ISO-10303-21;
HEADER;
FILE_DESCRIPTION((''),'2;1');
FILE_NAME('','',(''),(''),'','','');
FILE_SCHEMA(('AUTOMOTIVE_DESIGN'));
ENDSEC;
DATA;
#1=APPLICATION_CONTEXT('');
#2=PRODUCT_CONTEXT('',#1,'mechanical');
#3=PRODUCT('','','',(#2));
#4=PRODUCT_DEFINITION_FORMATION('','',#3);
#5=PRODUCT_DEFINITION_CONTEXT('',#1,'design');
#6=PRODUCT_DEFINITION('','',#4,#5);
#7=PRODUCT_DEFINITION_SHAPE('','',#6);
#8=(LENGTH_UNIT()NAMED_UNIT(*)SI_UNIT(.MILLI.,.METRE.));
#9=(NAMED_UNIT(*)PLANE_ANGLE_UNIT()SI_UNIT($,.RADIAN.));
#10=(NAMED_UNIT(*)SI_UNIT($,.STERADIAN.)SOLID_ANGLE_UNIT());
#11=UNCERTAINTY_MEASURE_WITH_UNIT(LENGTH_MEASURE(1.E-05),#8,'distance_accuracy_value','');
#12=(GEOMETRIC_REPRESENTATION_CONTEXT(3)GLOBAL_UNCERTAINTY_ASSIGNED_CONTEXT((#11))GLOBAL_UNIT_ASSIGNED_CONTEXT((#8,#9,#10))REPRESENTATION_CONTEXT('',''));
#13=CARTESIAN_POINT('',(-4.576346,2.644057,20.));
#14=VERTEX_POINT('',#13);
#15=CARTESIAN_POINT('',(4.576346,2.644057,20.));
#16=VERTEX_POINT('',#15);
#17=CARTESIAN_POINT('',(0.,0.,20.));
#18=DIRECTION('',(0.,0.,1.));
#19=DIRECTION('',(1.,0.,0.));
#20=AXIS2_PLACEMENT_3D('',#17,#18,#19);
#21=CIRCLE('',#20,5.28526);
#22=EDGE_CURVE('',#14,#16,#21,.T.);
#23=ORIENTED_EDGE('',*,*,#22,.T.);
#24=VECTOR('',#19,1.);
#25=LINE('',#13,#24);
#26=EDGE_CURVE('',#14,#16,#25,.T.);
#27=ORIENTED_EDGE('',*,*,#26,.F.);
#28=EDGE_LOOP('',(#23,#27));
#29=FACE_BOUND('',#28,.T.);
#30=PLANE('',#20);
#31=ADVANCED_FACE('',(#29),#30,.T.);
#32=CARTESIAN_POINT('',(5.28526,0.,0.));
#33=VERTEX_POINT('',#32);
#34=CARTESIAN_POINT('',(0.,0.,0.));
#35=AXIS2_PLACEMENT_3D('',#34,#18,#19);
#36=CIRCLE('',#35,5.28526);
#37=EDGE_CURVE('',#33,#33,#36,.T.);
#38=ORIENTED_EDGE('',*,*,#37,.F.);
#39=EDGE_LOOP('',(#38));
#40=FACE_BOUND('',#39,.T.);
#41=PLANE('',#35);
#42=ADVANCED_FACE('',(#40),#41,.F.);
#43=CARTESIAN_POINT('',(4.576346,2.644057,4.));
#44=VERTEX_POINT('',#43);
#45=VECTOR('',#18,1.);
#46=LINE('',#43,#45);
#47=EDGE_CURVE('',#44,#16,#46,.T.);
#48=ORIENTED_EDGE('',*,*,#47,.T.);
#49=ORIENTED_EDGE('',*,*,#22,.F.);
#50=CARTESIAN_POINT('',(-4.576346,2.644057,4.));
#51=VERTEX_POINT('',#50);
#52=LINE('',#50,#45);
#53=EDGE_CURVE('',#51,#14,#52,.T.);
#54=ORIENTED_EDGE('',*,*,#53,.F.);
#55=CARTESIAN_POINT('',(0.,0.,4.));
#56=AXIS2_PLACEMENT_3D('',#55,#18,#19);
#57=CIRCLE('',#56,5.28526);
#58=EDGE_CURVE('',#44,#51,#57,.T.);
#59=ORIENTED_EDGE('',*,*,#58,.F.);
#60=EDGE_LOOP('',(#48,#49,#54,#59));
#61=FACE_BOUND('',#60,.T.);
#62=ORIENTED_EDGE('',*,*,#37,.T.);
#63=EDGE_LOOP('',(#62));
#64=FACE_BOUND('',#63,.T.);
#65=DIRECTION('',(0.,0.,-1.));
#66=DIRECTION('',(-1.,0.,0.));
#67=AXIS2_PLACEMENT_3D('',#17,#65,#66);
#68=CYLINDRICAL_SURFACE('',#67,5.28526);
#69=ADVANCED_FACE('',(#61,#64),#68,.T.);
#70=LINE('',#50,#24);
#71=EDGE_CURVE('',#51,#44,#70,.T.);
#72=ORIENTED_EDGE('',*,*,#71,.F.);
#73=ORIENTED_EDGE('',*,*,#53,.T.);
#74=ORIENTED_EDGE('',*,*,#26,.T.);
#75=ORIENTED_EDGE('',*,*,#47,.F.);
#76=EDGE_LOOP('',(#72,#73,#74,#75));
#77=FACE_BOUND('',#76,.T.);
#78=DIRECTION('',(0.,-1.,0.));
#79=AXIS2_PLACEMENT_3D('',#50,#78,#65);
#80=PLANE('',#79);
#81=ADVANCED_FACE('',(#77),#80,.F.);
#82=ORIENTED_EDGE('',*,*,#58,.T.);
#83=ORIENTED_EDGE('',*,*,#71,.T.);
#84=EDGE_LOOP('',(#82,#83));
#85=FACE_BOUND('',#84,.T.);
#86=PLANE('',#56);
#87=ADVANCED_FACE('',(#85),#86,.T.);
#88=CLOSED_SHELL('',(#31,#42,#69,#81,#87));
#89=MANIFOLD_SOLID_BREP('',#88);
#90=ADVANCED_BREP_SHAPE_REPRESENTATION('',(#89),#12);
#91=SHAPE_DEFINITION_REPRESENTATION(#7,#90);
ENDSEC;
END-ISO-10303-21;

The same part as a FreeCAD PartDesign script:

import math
import FreeCAD as App
import Part
import Sketcher
from FreeCAD import Vector
Q = App.Units.Quantity

doc = App.newDocument("Part")
body = doc.addObject("PartDesign::Body", "Body")

sketch1 = body.newObject("Sketcher::SketchObject", "Sketch")
sketch1.AttachmentSupport = (doc.getObject("XY_Plane"), [""])
sketch1.MapMode = "FlatFace"
sketch1.addGeometry(Part.Circle(Vector(0, 0, 0), Vector(0, 0, 1), 5.28526), False)
sketch1.addConstraint([
    Sketcher.Constraint("Coincident", 0, 3, -1, 1),
    Sketcher.Constraint("Diameter", 0, Q("10.570521 mm")),
])
pad1 = body.newObject("PartDesign::Pad", "Pad")
pad1.Profile = sketch1
pad1.Length = 20

sketch2 = body.newObject("Sketcher::SketchObject", "Sketch001")
sketch2.AttachmentSupport = (doc.getObject("XY_Plane"), [""])
sketch2.MapMode = "FlatFace"
sketch2.AttachmentOffset = App.Placement(Vector(0, 0, 20), App.Rotation())
sketch2.addGeometry([
    Part.LineSegment(Vector(-4.576346, 2.644057, 0), Vector(4.576346, 2.644057, 0)),
    Part.ArcOfCircle(Part.Circle(Vector(0, 0, 0), Vector(0, 0, 1), 5.28526), math.radians(30.017858), math.radians(149.982142)),
], False)
sketch2.addConstraint([
    Sketcher.Constraint("Coincident", 0, 1, 1, 2),
    Sketcher.Constraint("Coincident", 1, 1, 0, 2),
    Sketcher.Constraint("Horizontal", 0),
    Sketcher.Constraint("Coincident", 1, 3, -1, 1),
    Sketcher.Constraint("Radius", 1, Q("5.28526 mm")),
    Sketcher.Constraint("DistanceX", 0, 1, 0, 2, Q("9.152692 mm")),
])
pocket1 = body.newObject("PartDesign::Pocket", "Pocket")
pocket1.Profile = sketch2
pocket1.Length = 16

doc.recompute()
